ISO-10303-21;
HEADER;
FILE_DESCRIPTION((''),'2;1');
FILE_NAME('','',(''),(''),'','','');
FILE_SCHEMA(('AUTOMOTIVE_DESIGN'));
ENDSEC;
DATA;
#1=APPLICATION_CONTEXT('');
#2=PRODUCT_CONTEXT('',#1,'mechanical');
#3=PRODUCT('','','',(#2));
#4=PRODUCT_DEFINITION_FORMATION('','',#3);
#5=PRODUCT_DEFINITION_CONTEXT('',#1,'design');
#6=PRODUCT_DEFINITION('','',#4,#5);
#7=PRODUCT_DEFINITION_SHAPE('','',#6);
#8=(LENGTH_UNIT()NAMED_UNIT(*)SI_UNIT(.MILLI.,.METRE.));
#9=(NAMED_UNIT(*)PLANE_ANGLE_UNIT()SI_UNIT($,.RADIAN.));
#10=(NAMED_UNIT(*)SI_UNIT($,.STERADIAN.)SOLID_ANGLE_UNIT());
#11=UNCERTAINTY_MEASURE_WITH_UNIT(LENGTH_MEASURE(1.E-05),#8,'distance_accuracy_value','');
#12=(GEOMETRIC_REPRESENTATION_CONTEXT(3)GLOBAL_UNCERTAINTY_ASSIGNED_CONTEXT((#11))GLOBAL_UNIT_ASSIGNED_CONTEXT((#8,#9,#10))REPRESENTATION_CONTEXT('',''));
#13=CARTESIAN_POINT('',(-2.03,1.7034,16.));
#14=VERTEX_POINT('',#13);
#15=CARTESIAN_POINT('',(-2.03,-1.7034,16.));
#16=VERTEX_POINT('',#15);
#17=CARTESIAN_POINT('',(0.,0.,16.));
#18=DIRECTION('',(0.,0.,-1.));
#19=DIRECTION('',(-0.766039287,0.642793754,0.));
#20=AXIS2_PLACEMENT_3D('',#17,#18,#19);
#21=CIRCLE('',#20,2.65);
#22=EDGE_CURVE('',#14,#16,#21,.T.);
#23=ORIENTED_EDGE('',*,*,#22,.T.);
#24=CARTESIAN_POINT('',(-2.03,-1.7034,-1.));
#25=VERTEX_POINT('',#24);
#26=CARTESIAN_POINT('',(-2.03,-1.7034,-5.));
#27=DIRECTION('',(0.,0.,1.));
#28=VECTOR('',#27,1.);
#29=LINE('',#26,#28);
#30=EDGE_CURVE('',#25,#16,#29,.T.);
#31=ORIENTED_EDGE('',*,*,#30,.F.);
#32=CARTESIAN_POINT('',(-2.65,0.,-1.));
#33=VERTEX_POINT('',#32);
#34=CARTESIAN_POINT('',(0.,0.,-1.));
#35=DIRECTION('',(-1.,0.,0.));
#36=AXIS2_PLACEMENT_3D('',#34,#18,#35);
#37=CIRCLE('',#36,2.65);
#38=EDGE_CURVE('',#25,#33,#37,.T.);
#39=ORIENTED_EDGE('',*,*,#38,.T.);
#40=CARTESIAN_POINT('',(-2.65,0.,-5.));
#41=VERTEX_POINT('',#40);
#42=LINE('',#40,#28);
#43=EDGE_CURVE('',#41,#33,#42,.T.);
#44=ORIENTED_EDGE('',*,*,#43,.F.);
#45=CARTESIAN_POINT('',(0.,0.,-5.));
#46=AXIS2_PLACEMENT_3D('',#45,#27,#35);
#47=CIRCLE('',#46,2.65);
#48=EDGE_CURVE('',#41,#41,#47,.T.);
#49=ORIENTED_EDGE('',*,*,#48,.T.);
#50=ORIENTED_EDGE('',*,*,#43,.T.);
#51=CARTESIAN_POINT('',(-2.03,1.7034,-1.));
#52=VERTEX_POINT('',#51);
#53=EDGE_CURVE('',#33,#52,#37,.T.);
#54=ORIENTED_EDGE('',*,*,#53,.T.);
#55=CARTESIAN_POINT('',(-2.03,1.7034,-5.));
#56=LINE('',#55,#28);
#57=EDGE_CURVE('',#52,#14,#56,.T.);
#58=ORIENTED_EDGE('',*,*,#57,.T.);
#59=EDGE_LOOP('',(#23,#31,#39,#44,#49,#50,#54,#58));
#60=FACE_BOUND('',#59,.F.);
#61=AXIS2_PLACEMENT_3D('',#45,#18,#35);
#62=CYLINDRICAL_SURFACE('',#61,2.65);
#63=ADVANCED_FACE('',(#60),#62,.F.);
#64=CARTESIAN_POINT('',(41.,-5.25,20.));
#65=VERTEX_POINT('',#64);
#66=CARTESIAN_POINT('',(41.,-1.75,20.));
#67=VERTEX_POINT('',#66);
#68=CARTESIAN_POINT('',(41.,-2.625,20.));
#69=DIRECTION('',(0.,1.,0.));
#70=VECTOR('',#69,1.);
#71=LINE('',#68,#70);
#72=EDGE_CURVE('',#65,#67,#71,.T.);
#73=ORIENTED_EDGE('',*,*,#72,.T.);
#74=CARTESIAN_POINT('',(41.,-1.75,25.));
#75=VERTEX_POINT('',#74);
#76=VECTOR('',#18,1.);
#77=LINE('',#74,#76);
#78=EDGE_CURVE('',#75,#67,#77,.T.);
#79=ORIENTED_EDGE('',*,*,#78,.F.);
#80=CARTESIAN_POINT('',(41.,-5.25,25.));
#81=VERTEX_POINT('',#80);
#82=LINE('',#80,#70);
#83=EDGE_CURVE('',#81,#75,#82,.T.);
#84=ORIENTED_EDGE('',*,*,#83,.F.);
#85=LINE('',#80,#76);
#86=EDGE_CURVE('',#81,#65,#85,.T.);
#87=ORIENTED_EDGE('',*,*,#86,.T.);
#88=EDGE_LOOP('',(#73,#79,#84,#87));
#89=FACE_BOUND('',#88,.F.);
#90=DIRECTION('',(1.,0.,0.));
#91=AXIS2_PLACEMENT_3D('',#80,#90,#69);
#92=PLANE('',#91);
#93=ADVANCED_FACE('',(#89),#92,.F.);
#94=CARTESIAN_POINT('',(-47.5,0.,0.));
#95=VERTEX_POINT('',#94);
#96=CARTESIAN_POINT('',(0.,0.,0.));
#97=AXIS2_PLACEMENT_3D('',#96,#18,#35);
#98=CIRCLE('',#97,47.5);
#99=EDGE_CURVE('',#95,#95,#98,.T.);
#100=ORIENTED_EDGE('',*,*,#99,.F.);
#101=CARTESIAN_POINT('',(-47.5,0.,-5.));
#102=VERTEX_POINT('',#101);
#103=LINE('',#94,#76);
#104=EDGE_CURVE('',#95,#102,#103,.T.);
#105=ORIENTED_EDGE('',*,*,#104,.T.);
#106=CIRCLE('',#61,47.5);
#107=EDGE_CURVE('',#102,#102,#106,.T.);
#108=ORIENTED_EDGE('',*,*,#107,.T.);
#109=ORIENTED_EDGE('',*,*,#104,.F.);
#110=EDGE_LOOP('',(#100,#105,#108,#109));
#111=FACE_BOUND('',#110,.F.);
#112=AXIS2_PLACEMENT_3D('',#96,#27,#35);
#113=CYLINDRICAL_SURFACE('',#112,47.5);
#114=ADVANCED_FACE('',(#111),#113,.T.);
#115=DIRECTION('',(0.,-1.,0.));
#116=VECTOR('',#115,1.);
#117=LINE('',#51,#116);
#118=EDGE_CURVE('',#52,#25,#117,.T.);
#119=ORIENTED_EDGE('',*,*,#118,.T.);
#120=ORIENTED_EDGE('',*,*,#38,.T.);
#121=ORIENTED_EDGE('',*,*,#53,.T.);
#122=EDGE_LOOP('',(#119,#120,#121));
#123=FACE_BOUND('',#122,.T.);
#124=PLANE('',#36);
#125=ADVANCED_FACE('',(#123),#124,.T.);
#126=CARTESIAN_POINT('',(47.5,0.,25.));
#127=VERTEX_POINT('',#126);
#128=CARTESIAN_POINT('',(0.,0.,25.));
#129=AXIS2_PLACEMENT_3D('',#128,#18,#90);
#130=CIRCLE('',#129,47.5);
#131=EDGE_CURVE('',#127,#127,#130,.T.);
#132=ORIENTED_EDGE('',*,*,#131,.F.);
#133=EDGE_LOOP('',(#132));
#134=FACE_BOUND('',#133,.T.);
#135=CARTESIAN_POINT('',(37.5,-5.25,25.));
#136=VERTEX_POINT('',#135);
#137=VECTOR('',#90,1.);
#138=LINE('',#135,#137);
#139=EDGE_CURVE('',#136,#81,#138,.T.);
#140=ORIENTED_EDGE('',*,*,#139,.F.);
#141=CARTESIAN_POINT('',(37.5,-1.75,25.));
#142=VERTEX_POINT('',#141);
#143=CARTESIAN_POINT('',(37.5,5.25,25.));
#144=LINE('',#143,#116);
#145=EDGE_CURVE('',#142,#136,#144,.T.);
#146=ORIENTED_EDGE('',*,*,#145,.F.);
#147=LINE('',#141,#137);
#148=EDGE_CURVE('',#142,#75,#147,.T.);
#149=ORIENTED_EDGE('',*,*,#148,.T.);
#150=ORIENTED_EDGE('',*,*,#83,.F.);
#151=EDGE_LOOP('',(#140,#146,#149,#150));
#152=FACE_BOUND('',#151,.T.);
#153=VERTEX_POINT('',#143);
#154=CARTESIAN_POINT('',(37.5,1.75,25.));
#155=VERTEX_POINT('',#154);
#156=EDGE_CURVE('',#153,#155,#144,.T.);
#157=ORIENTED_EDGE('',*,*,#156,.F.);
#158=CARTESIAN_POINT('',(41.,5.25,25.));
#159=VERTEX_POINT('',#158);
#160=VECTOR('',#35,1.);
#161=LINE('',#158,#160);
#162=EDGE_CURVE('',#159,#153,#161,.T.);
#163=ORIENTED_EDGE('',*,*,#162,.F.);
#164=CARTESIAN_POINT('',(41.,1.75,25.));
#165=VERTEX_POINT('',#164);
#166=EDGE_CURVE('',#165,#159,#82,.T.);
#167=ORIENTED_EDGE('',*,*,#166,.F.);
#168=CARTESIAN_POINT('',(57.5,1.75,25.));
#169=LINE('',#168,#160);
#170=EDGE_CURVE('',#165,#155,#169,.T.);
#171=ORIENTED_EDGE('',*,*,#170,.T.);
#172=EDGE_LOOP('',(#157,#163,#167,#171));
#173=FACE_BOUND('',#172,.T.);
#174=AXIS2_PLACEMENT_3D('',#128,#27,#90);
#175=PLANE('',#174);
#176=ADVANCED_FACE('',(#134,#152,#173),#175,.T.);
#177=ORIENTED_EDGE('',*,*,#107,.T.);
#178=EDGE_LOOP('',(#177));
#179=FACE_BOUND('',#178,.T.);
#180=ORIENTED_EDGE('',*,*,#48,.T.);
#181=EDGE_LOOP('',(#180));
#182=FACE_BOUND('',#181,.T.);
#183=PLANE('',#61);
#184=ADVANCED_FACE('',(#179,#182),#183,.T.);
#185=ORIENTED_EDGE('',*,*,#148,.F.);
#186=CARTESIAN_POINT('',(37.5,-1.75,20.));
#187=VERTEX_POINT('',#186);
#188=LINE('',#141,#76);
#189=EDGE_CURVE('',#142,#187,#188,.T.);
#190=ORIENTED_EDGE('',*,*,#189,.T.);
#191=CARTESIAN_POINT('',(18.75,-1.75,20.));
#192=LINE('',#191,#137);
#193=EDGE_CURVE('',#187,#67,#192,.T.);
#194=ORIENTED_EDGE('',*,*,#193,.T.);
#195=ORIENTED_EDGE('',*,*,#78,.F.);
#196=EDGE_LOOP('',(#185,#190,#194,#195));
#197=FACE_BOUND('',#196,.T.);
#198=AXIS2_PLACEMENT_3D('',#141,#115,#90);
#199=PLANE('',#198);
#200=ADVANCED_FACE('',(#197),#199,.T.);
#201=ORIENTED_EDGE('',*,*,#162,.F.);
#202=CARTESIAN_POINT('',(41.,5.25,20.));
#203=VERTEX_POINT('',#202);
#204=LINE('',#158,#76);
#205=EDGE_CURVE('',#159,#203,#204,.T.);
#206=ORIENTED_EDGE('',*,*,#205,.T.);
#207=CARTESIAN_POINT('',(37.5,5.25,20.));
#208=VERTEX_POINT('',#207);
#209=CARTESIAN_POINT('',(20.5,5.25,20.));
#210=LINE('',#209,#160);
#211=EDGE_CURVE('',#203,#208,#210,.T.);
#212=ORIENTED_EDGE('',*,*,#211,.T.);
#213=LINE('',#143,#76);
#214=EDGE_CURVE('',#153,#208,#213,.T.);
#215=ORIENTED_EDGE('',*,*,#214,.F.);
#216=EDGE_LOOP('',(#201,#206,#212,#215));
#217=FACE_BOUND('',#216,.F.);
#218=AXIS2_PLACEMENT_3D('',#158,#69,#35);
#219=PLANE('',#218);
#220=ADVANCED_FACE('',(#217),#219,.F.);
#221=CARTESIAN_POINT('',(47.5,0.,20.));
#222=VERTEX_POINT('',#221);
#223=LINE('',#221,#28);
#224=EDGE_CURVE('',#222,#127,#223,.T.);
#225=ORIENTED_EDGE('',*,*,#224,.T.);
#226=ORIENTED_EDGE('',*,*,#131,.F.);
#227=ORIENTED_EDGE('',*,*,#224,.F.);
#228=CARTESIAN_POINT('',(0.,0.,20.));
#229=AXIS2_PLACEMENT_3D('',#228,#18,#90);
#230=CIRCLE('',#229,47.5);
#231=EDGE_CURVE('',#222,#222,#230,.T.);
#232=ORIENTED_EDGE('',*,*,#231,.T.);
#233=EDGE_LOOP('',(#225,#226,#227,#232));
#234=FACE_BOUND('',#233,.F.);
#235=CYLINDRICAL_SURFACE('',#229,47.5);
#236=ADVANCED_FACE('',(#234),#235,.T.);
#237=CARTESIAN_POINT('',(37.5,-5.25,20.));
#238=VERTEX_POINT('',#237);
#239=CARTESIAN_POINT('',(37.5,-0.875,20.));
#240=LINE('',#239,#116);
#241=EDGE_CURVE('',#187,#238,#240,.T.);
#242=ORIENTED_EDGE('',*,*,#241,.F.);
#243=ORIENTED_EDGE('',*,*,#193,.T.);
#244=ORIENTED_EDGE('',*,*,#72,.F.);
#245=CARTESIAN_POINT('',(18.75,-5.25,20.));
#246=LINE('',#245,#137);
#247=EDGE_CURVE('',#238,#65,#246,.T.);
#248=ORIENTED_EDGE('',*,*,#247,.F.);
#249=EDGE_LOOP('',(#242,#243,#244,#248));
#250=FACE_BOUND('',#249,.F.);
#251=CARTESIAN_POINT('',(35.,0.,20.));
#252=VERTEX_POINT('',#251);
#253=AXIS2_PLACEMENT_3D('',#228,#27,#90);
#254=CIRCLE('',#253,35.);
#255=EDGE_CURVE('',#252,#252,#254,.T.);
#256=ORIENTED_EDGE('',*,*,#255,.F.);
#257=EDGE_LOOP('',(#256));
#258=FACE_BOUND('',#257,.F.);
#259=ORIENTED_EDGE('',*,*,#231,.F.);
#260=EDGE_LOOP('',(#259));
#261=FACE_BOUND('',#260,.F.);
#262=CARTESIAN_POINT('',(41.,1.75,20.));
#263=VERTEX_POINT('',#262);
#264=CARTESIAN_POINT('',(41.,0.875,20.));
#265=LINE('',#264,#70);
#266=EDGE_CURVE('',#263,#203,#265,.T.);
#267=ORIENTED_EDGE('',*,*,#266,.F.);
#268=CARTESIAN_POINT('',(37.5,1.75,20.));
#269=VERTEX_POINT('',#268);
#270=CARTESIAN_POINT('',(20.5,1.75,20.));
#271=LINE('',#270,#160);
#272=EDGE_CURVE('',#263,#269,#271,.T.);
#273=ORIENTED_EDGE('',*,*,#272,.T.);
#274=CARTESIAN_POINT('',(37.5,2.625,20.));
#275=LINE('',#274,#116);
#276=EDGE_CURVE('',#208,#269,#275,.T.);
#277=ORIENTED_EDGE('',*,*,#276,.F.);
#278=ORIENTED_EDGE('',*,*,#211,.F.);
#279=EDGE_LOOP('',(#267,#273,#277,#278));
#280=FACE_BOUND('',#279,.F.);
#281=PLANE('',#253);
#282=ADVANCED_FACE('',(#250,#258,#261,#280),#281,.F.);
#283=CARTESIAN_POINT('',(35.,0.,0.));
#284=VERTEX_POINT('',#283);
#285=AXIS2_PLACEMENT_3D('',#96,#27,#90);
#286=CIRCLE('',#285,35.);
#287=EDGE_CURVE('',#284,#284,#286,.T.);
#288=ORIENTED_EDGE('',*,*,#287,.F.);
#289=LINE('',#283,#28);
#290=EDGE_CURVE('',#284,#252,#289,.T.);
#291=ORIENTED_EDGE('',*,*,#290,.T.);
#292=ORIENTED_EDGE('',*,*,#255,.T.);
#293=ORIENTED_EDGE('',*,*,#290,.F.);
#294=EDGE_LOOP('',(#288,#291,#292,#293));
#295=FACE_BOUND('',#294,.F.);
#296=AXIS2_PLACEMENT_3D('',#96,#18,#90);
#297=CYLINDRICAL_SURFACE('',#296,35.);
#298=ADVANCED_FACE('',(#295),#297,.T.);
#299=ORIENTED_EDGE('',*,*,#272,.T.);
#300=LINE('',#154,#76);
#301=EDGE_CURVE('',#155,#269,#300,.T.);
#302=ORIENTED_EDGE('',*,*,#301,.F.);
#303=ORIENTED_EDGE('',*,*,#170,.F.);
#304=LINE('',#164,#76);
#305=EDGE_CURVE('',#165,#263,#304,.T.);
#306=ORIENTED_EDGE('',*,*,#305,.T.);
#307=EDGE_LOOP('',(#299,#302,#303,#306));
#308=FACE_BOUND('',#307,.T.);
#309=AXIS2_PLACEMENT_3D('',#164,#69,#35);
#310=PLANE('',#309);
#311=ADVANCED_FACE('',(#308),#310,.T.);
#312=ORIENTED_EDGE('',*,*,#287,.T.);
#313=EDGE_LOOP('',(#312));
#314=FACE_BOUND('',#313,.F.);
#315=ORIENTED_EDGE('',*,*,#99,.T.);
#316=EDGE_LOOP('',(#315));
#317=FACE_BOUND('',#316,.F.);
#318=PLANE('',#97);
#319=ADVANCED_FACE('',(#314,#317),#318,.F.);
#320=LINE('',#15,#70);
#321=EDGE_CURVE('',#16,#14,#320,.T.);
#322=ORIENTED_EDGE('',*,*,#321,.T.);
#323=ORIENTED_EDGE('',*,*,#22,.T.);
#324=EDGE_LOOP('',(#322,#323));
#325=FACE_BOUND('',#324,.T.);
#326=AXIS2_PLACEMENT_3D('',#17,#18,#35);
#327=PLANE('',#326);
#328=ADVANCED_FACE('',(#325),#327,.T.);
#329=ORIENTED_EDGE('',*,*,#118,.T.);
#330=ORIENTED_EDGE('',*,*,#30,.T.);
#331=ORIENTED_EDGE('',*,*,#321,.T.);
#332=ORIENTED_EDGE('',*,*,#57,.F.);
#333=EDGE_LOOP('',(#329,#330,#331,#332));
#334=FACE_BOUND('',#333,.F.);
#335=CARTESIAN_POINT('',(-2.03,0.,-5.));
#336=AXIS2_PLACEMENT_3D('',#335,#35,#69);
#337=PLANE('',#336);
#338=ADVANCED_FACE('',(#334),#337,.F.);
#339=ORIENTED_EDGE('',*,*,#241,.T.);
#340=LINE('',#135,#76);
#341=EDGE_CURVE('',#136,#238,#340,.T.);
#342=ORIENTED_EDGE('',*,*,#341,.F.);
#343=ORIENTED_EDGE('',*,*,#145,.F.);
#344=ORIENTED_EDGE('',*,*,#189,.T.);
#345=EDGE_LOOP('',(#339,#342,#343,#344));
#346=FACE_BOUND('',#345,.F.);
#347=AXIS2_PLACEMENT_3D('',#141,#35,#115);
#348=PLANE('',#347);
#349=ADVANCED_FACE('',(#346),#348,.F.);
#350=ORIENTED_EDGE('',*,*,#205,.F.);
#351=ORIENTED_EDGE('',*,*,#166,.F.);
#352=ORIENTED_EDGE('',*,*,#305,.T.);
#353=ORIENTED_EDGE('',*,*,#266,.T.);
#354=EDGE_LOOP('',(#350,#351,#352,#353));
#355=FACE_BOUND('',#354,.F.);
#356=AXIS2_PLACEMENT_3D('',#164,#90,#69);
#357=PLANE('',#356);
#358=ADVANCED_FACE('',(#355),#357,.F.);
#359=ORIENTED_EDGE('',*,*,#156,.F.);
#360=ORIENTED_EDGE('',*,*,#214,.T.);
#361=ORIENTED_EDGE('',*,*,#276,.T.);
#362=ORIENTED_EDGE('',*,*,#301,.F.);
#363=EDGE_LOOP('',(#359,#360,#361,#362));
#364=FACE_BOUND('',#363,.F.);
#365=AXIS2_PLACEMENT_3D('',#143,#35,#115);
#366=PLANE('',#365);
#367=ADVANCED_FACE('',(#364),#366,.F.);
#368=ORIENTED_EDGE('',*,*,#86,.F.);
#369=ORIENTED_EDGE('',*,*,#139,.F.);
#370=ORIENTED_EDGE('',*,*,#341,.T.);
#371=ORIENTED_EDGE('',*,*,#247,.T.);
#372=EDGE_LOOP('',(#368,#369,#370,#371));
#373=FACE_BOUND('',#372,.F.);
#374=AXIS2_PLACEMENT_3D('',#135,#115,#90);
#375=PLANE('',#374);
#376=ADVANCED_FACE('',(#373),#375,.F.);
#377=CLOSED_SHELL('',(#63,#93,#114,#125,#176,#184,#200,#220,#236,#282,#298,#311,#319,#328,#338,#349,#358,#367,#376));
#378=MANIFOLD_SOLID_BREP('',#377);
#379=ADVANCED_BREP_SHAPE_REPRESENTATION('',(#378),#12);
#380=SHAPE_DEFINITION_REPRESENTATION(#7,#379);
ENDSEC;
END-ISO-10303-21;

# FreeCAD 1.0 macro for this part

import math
import FreeCAD as App
import Part
import Sketcher
from FreeCAD import Vector
Q = App.Units.Quantity

doc = App.newDocument("Part")
body = doc.addObject("PartDesign::Body", "Body")

# Sketch on XY plane
sketch1 = body.newObject("Sketcher::SketchObject", "Sketch")
sketch1.AttachmentSupport = (doc.getObject("XY_Plane"), [""])
sketch1.MapMode = "FlatFace"
sketch1.addGeometry(Part.Circle(Vector(0, 0, 0), Vector(0, 0, 1), 35), False)
sketch1.addConstraint(Sketcher.Constraint("Coincident", 0, 3, -1, 1))
sketch1.addConstraint(Sketcher.Constraint("Diameter", 0, Q("70 mm")))
pad1 = body.newObject("PartDesign::Pad", "Pad")
pad1.Profile = sketch1
pad1.Length = 20

# Sketch on XY plane
sketch2 = body.newObject("Sketcher::SketchObject", "Sketch001")
sketch2.AttachmentSupport = (doc.getObject("XY_Plane"), [""])
sketch2.MapMode = "FlatFace"
sketch2.AttachmentOffset = App.Placement(Vector(0, 0, 20), App.Rotation())
sketch2.addGeometry(Part.Circle(Vector(0, 0, 0), Vector(0, 0, 1), 48), False)
sketch2.addConstraint(Sketcher.Constraint("Coincident", 0, 3, -1, 1))
sketch2.addConstraint(Sketcher.Constraint("Diameter", 0, Q("95 mm")))
pad2 = body.newObject("PartDesign::Pad", "Pad001")
pad2.Profile = sketch2
pad2.Length = 5

# Sketch on XY plane
sketch3 = body.newObject("Sketcher::SketchObject", "Sketch002")
sketch3.AttachmentSupport = (doc.getObject("XY_Plane"), [""])
sketch3.MapMode = "FlatFace"
sketch3.addGeometry(Part.Circle(Vector(0, 0, 0), Vector(0, 0, 1), 48), False)
sketch3.addConstraint(Sketcher.Constraint("Coincident", 0, 3, -1, 1))
sketch3.addConstraint(Sketcher.Constraint("Diameter", 0, Q("95 mm")))
pad3 = body.newObject("PartDesign::Pad", "Pad002")
pad3.Profile = sketch3
pad3.Length = 5
pad3.Reversed = True

# Sketch on XY plane
sketch4 = body.newObject("Sketcher::SketchObject", "Sketch003")
sketch4.AttachmentSupport = (doc.getObject("XY_Plane"), [""])
sketch4.MapMode = "FlatFace"
sketch4.AttachmentOffset = App.Placement(Vector(0, 0, -5), App.Rotation())
sketch4.addGeometry(Part.ArcOfCircle(Part.Circle(Vector(0, 0, 0), Vector(0, 0, 1), 2.6), math.radians(-140), math.radians(140)), False)
sketch4.addGeometry(Part.LineSegment(Vector(-2, 1.7, 0), Vector(-2, -1.7, 0)), False)
sketch4.addConstraint(Sketcher.Constraint("Coincident", 0, 1, 1, 2))
sketch4.addConstraint(Sketcher.Constraint("Coincident", 1, 1, 0, 2))
sketch4.addConstraint(Sketcher.Constraint("Vertical", 1))
sketch4.addConstraint(Sketcher.Constraint("Coincident", 0, 3, -1, 1))
sketch4.addConstraint(Sketcher.Constraint("Radius", 0, Q("2.65 mm")))
sketch4.addConstraint(Sketcher.Constraint("DistanceX", 0, 1, -1, 1, Q("2.03 mm")))
pocket1 = body.newObject("PartDesign::Pocket", "Pocket")
pocket1.Profile = sketch4
pocket1.Length = 21
pocket1.Reversed = True

# Sketch on XY plane
sketch5 = body.newObject("Sketcher::SketchObject", "Sketch004")
sketch5.AttachmentSupport = (doc.getObject("XY_Plane"), [""])
sketch5.MapMode = "FlatFace"
sketch5.AttachmentOffset = App.Placement(Vector(0, 0, -5), App.Rotation())
sketch5.addGeometry(Part.ArcOfCircle(Part.Circle(Vector(0, 0, 0), Vector(0, 0, 1), 2.6), math.radians(140), math.radians(220)), False)
sketch5.addGeometry(Part.LineSegment(Vector(-2, -1.7, 0), Vector(-2, 1.7, 0)), False)
sketch5.addConstraint(Sketcher.Constraint("Coincident", 0, 1, 1, 2))
sketch5.addConstraint(Sketcher.Constraint("Coincident", 1, 1, 0, 2))
sketch5.addConstraint(Sketcher.Constraint("Vertical", 1))
sketch5.addConstraint(Sketcher.Constraint("Coincident", 0, 3, -1, 1))
sketch5.addConstraint(Sketcher.Constraint("Radius", 0, Q("2.65 mm")))
sketch5.addConstraint(Sketcher.Constraint("DistanceX", 0, 1, -1, 1, Q("2.03 mm")))
pocket2 = body.newObject("PartDesign::Pocket", "Pocket001")
pocket2.Profile = sketch5
pocket2.Length = 4
pocket2.Reversed = True

# Sketch on XY plane
sketch6 = body.newObject("Sketcher::SketchObject", "Sketch005")
sketch6.AttachmentSupport = (doc.getObject("XY_Plane"), [""])
sketch6.MapMode = "FlatFace"
sketch6.AttachmentOffset = App.Placement(Vector(0, 0, 25), App.Rotation())
sketch6.addGeometry(Part.LineSegment(Vector(57.5, -1.8, 0), Vector(57.5, 1.8, 0)), False)
sketch6.addGeometry(Part.LineSegment(Vector(57.5, 1.8, 0), Vector(47.5, 1.8, 0)), False)
sketch6.addGeometry(Part.ArcOfCircle(Part.Circle(Vector(0, 0, 0), Vector(0, 0, 1), 47.5), math.radians(-2.11), math.radians(2.11)), False)
sketch6.addGeometry(Part.LineSegment(Vector(47.5, -1.8, 0), Vector(57.5, -1.8, 0)), False)
sketch6.addGeometry(Part.LineSegment(Vector(37.5, 1.8, 0), Vector(41, 1.8, 0)), False)
sketch6.addGeometry(Part.LineSegment(Vector(41, 1.8, 0), Vector(41, 5.2, 0)), False)
sketch6.addGeometry(Part.LineSegment(Vector(41, 5.2, 0), Vector(37.5, 5.2, 0)), False)
sketch6.addGeometry(Part.LineSegment(Vector(37.5, 5.2, 0), Vector(37.5, 1.8, 0)), False)
sketch6.addGeometry(Part.LineSegment(Vector(41, -5.2, 0), Vector(41, -1.8, 0)), False)
sketch6.addGeometry(Part.LineSegment(Vector(41, -1.8, 0), Vector(37.5, -1.8, 0)), False)
sketch6.addGeometry(Part.LineSegment(Vector(37.5, -1.8, 0), Vector(37.5, -5.2, 0)), False)
sketch6.addGeometry(Part.LineSegment(Vector(37.5, -5.2, 0), Vector(41, -5.2, 0)), False)
sketch6.addConstraint(Sketcher.Constraint("Coincident", 0, 2, 1, 1))
sketch6.addConstraint(Sketcher.Constraint("Coincident", 1, 2, 2, 2))
sketch6.addConstraint(Sketcher.Constraint("Coincident", 2, 1, 3, 1))
sketch6.addConstraint(Sketcher.Constraint("Coincident", 3, 2, 0, 1))
sketch6.addConstraint(Sketcher.Constraint("Coincident", 4, 2, 5, 1))
sketch6.addConstraint(Sketcher.Constraint("Coincident", 5, 2, 6, 1))
sketch6.addConstraint(Sketcher.Constraint("Coincident", 6, 2, 7, 1))
sketch6.addConstraint(Sketcher.Constraint("Coincident", 7, 2, 4, 1))
sketch6.addConstraint(Sketcher.Constraint("Coincident", 8, 2, 9, 1))
sketch6.addConstraint(Sketcher.Constraint("Coincident", 9, 2, 10, 1))
sketch6.addConstraint(Sketcher.Constraint("Coincident", 10, 2, 11, 1))
sketch6.addConstraint(Sketcher.Constraint("Coincident", 11, 2, 8, 1))
sketch6.addConstraint(Sketcher.Constraint("Vertical", 0))
sketch6.addConstraint(Sketcher.Constraint("Horizontal", 1))
sketch6.addConstraint(Sketcher.Constraint("Horizontal", 3))
sketch6.addConstraint(Sketcher.Constraint("Horizontal", 4))
sketch6.addConstraint(Sketcher.Constraint("Vertical", 5))
sketch6.addConstraint(Sketcher.Constraint("Horizontal", 6))
sketch6.addConstraint(Sketcher.Constraint("Vertical", 7))
sketch6.addConstraint(Sketcher.Constraint("Vertical", 8))
sketch6.addConstraint(Sketcher.Constraint("Horizontal", 9))
sketch6.addConstraint(Sketcher.Constraint("Vertical", 10))
sketch6.addConstraint(Sketcher.Constraint("Horizontal", 11))
sketch6.addConstraint(Sketcher.Constraint("Coincident", 2, 3, -1, 1))
sketch6.addConstraint(Sketcher.Constraint("Symmetric", 4, 2, 8, 2, -1))
sketch6.addConstraint(Sketcher.Constraint("Symmetric", 6, 2, 10, 2, -1))
sketch6.addConstraint(Sketcher.Constraint("Horizontal", 1, 2, 4, 2))
sketch6.addConstraint(Sketcher.Constraint("Horizontal", 3, 2, 8, 2))
sketch6.addConstraint(Sketcher.Constraint("Equal", 11, 0))
sketch6.addConstraint(Sketcher.Constraint("Equal", 0, 5))
sketch6.addConstraint(Sketcher.Constraint("DistanceX", 4, 1, 4, 2, Q("3.5 mm")))
sketch6.addConstraint(Sketcher.Constraint("DistanceX", 6, 2, 0, 2, Q("20 mm")))
sketch6.addConstraint(Sketcher.Constraint("Radius", 2, Q("47.5 mm")))
sketch6.addConstraint(Sketcher.Constraint("DistanceX", -1, 1, 4, 2, Q("41 mm")))
pocket3 = body.newObject("PartDesign::Pocket", "Pocket002")
pocket3.Profile = sketch6
pocket3.Length = 10

doc.recompute()
